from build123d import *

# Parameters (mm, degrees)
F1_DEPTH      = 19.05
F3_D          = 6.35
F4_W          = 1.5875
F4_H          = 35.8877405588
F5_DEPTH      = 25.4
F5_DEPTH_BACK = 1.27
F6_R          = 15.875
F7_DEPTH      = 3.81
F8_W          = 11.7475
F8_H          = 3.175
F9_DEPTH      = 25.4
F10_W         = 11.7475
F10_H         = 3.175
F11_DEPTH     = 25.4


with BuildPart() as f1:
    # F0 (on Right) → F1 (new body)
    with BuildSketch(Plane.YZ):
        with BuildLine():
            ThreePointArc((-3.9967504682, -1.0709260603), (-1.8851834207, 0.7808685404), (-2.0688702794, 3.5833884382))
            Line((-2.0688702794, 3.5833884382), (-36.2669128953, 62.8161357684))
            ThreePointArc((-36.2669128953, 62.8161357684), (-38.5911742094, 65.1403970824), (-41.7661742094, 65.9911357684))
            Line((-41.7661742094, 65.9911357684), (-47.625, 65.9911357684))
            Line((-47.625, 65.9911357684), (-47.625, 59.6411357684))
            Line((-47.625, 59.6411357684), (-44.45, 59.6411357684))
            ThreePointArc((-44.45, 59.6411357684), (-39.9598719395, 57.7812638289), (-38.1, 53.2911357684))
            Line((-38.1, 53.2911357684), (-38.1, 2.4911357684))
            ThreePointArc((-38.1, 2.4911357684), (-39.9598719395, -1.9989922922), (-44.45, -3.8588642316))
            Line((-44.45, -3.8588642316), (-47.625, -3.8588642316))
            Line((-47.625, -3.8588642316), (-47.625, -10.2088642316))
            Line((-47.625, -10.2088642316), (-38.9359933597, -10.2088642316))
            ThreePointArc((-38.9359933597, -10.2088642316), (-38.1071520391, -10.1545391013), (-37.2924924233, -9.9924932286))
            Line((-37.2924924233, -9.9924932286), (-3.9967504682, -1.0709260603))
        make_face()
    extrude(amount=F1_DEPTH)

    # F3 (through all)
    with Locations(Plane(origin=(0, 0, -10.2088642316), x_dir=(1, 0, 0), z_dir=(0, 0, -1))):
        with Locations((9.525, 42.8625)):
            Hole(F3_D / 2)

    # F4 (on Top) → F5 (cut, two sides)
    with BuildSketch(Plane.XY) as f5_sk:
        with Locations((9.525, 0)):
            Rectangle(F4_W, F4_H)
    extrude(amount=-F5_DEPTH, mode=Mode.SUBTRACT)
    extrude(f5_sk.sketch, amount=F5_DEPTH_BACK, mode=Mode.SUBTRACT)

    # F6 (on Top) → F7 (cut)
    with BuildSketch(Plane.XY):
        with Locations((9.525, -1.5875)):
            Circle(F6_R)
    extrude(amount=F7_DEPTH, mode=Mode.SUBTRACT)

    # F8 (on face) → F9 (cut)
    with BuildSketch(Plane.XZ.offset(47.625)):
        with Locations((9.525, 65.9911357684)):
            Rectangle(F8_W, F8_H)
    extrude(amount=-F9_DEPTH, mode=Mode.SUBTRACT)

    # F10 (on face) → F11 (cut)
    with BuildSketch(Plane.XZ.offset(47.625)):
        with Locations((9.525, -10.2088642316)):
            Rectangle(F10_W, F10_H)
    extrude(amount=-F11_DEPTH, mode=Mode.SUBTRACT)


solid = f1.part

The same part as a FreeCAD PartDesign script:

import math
import FreeCAD as App
import Part
import Sketcher
Q = App.Units.Quantity


def add_polygon(sketch, points):
    """Adds a closed chain of lines whose ends are joined by coincident constraints."""
    first, n = sketch.GeometryCount, len(points)
    for a, b in zip(points, points[1:] + points[:1]):
        sketch.addGeometry(Part.LineSegment(App.Vector(*a, 0), App.Vector(*b, 0)), False)
    for i in range(n):
        sketch.addConstraint(Sketcher.Constraint("Coincident", first + i, 2, first + (i + 1) % n, 1))

doc = App.newDocument("Part")
body = doc.addObject("PartDesign::Body", "Body")

# Sketch on YZ plane
sketch1 = body.newObject("Sketcher::SketchObject", "Sketch")
sketch1.AttachmentSupport = (doc.getObject("YZ_Plane"), [""])
sketch1.MapMode = "FlatFace"
sketch1.addGeometry(Part.ArcOfCircle(Part.Circle(App.Vector(-4.8, 2, 0), App.Vector(0, 0, 1), 3.2), math.radians(-75), math.radians(30)), False)
sketch1.addGeometry(Part.LineSegment(App.Vector(-2.1, 3.6, 0), App.Vector(-36.3, 62.8, 0)), False)
sketch1.addGeometry(Part.ArcOfCircle(Part.Circle(App.Vector(-41.8, 59.6, 0), App.Vector(0, 0, 1), 6.3), math.radians(30), math.radians(90)), False)
sketch1.addGeometry(Part.LineSegment(App.Vector(-41.8, 66, 0), App.Vector(-47.6, 66, 0)), False)
sketch1.addGeometry(Part.LineSegment(App.Vector(-47.6, 66, 0), App.Vector(-47.6, 59.6, 0)), False)
sketch1.addGeometry(Part.LineSegment(App.Vector(-47.6, 59.6, 0), App.Vector(-44.5, 59.6, 0)), False)
sketch1.addGeometry(Part.ArcOfCircle(Part.Circle(App.Vector(-44.5, 53.3, 0), App.Vector(0, 0, 1), 6.3), math.radians(0), math.radians(90)), False)
sketch1.addGeometry(Part.LineSegment(App.Vector(-38.1, 53.3, 0), App.Vector(-38.1, 2.5, 0)), False)
sketch1.addGeometry(Part.ArcOfCircle(Part.Circle(App.Vector(-44.5, 2.5, 0), App.Vector(0, 0, 1), 6.3), math.radians(-90), math.radians(0)), False)
sketch1.addGeometry(Part.LineSegment(App.Vector(-44.5, -3.9, 0), App.Vector(-47.6, -3.9, 0)), False)
sketch1.addGeometry(Part.LineSegment(App.Vector(-47.6, -3.9, 0), App.Vector(-47.6, -10.2, 0)), False)
sketch1.addGeometry(Part.LineSegment(App.Vector(-47.6, -10.2, 0), App.Vector(-38.9, -10.2, 0)), False)
sketch1.addGeometry(Part.ArcOfCircle(Part.Circle(App.Vector(-38.9, -3.9, 0), App.Vector(0, 0, 1), 6.4), math.radians(-90), math.radians(-75)), False)
sketch1.addGeometry(Part.LineSegment(App.Vector(-37.3, -10, 0), App.Vector(-4, -1.1, 0)), False)
sketch1.addConstraint(Sketcher.Constraint("Tangent", 0, 2, 1, 1))
sketch1.addConstraint(Sketcher.Constraint("Tangent", 1, 2, 2, 1))
sketch1.addConstraint(Sketcher.Constraint("Tangent", 2, 2, 3, 1))
sketch1.addConstraint(Sketcher.Constraint("Coincident", 3, 2, 4, 1))
sketch1.addConstraint(Sketcher.Constraint("Coincident", 4, 2, 5, 1))
sketch1.addConstraint(Sketcher.Constraint("Tangent", 5, 2, 6, 2))
sketch1.addConstraint(Sketcher.Constraint("Tangent", 6, 1, 7, 1))
sketch1.addConstraint(Sketcher.Constraint("Tangent", 7, 2, 8, 2))
sketch1.addConstraint(Sketcher.Constraint("Tangent", 8, 1, 9, 1))
sketch1.addConstraint(Sketcher.Constraint("Coincident", 9, 2, 10, 1))
sketch1.addConstraint(Sketcher.Constraint("Coincident", 10, 2, 11, 1))
sketch1.addConstraint(Sketcher.Constraint("Tangent", 11, 2, 12, 1))
sketch1.addConstraint(Sketcher.Constraint("Tangent", 12, 2, 13, 1))
sketch1.addConstraint(Sketcher.Constraint("Tangent", 13, 2, 0, 1))
sketch1.addConstraint(Sketcher.Constraint("Horizontal", 3))
sketch1.addConstraint(Sketcher.Constraint("Vertical", 4))
sketch1.addConstraint(Sketcher.Constraint("Horizontal", 5))
sketch1.addConstraint(Sketcher.Constraint("Vertical", 7))
sketch1.addConstraint(Sketcher.Constraint("Horizontal", 9))
sketch1.addConstraint(Sketcher.Constraint("Vertical", 10))
sketch1.addConstraint(Sketcher.Constraint("Horizontal", 11))
sketch1.addConstraint(Sketcher.Constraint("Equal", 2, 6))
sketch1.addConstraint(Sketcher.Constraint("Equal", 6, 8))
sketch1.addConstraint(Sketcher.Constraint("Equal", 8, 12))
sketch1.addConstraint(Sketcher.Constraint("Horizontal", 2, 3, 4, 2))
sketch1.addConstraint(Sketcher.Constraint("Horizontal", 12, 3, 8, 1))
sketch1.addConstraint(Sketcher.Constraint("Vertical", 4, 2, 9, 2))
sketch1.addConstraint(Sketcher.Constraint("DistanceY", 7, 2, 7, 1, Q("2 in")))
sketch1.addConstraint(Sketcher.Constraint("Radius", 2, Q("0.25 in")))
sketch1.addConstraint(Sketcher.Constraint("Angle", 1, Q("120 deg")))
sketch1.addConstraint(Sketcher.Constraint("Angle", 13, Q("15 deg")))
sketch1.addConstraint(Sketcher.Constraint("Radius", 0, Q("0.125 in")))
sketch1.addConstraint(Sketcher.Constraint("DistanceX", 6, 1, -1, 1, Q("1.5 in")))
sketch1.addConstraint(Sketcher.Constraint("DistanceX", 5, 1, 5, 2, Q("0.125 in")))
sketch1.addConstraint(Sketcher.Constraint("DistanceX", 0, 3, -1, 1, Q("4.818501 mm")))
sketch1.addConstraint(Sketcher.Constraint("Distance", 13, Q("34.470289 mm")))
sketch1.addConstraint(Sketcher.Constraint("DistanceY", -1, 1, 0, 3, Q("1.995888 mm")))
pad1 = body.newObject("PartDesign::Pad", "Pad")
pad1.Profile = sketch1
pad1.Length = Q("0.75 in")

# Sketch on XY plane
sketch2 = body.newObject("Sketcher::SketchObject", "Sketch001")
sketch2.AttachmentSupport = (doc.getObject("XY_Plane"), [""])
sketch2.MapMode = "FlatFace"
sketch2.AttachmentOffset = App.Placement(App.Vector(0, 0, -10.208864), App.Rotation())
sketch2.addGeometry(Part.Circle(App.Vector(9.5, -42.9, 0), App.Vector(0, 0, 1), 3.2), False)
sketch2.addConstraint(Sketcher.Constraint("Diameter", 0, Q("0.25 in")))
sketch2.addConstraint(Sketcher.Constraint("DistanceX", -1, 1, 0, 3, Q("0.375 in")))
sketch2.addConstraint(Sketcher.Constraint("DistanceY", 0, 3, -1, 1, Q("1.6875 in")))
doc.recompute()
hole = body.newObject("PartDesign::Hole", "Hole")
hole.Profile = sketch2
hole.ThreadType = "None"
hole.Diameter = Q("0.25 in")
hole.DepthType = "ThroughAll"
hole.Reversed = True

# Sketch on XY plane
sketch3 = body.newObject("Sketcher::SketchObject", "Sketch002")
sketch3.AttachmentSupport = (doc.getObject("XY_Plane"), [""])
sketch3.MapMode = "FlatFace"
add_polygon(sketch3, [(8.7, 17.9), (8.7, -17.9), (10.3, -17.9), (10.3, 17.9)])  # lines 0-3
sketch3.addConstraint(Sketcher.Constraint("Vertical", 0))
sketch3.addConstraint(Sketcher.Constraint("Horizontal", 1))
sketch3.addConstraint(Sketcher.Constraint("Vertical", 2))
sketch3.addConstraint(Sketcher.Constraint("Horizontal", 3))
sketch3.addConstraint(Sketcher.Constraint("DistanceX", 1, 1, 1, 2, Q("0.0625 in")))
sketch3.addConstraint(Sketcher.Constraint("DistanceX", -1, 1, 0, 2, Q("0.34375 in")))
sketch3.addConstraint(Sketcher.Constraint("DistanceY", 0, 2, 0, 1, Q("35.887741 mm")))
sketch3.addConstraint(Sketcher.Constraint("DistanceY", 0, 2, -1, 1, Q("17.94387 mm")))
pocket1 = body.newObject("PartDesign::Pocket", "Pocket")
pocket1.Profile = sketch3
pocket1.Type = "TwoLengths"
pocket1.Length = Q("1 in")
pocket1.Length2 = Q("0.05 in")

# Sketch on XY plane
sketch4 = body.newObject("Sketcher::SketchObject", "Sketch003")
sketch4.AttachmentSupport = (doc.getObject("XY_Plane"), [""])
sketch4.MapMode = "FlatFace"
sketch4.addGeometry(Part.Circle(App.Vector(10, -2, 0), App.Vector(0, 0, 1), 16), False)
sketch4.addConstraint(Sketcher.Constraint("Diameter", 0, Q("1.25 in")))
sketch4.addConstraint(Sketcher.Constraint("DistanceX", -1, 1, 0, 3, Q("0.375 in")))
sketch4.addConstraint(Sketcher.Constraint("DistanceY", 0, 3, -1, 1, Q("0.0625 in")))
pocket2 = body.newObject("PartDesign::Pocket", "Pocket001")
pocket2.Profile = sketch4
pocket2.Length = Q("0.15 in")
pocket2.Reversed = True

# Sketch on XZ plane
sketch5 = body.newObject("Sketcher::SketchObject", "Sketch004")
sketch5.AttachmentSupport = (doc.getObject("XZ_Plane"), [""])
sketch5.MapMode = "FlatFace"
sketch5.AttachmentOffset = App.Placement(App.Vector(0, 0, 1.875 * 25.4), App.Rotation())
add_polygon(sketch5, [(3.7, 67.6), (3.7, 64.4), (15.4, 64.4), (15.4, 67.6)])  # lines 0-3
sketch5.addConstraint(Sketcher.Constraint("Vertical", 0))
sketch5.addConstraint(Sketcher.Constraint("Horizontal", 1))
sketch5.addConstraint(Sketcher.Constraint("Vertical", 2))
sketch5.addConstraint(Sketcher.Constraint("Horizontal", 3))
sketch5.addConstraint(Sketcher.Constraint("DistanceY", 0, 2, 0, 1, Q("0.125 in")))
sketch5.addConstraint(Sketcher.Constraint("DistanceX", 1, 1, 1, 2, Q("0.4625 in")))
sketch5.addConstraint(Sketcher.Constraint("DistanceX", -1, 1, 0, 2, Q("3.65125 mm")))
sketch5.addConstraint(Sketcher.Constraint("DistanceY", -1, 1, 0, 2, Q("64.403636 mm")))
pocket3 = body.newObject("PartDesign::Pocket", "Pocket002")
pocket3.Profile = sketch5
pocket3.Length = Q("1 in")

# Sketch on XZ plane
sketch6 = body.newObject("Sketcher::SketchObject", "Sketch005")
sketch6.AttachmentSupport = (doc.getObject("XZ_Plane"), [""])
sketch6.MapMode = "FlatFace"
sketch6.AttachmentOffset = App.Placement(App.Vector(0, 0, 1.875 * 25.4), App.Rotation())
add_polygon(sketch6, [(3.7, -8.6), (3.7, -11.8), (15.4, -11.8), (15.4, -8.6)])  # lines 0-3
sketch6.addConstraint(Sketcher.Constraint("Vertical", 0))
sketch6.addConstraint(Sketcher.Constraint("Horizontal", 1))
sketch6.addConstraint(Sketcher.Constraint("Vertical", 2))
sketch6.addConstraint(Sketcher.Constraint("Horizontal", 3))
sketch6.addConstraint(Sketcher.Constraint("DistanceY", 0, 2, 0, 1, Q("0.125 in")))
sketch6.addConstraint(Sketcher.Constraint("DistanceX", 1, 1, 1, 2, Q("0.4625 in")))
sketch6.addConstraint(Sketcher.Constraint("DistanceX", -1, 1, 0, 2, Q("3.65125 mm")))
sketch6.addConstraint(Sketcher.Constraint("DistanceY", 0, 2, -1, 1, Q("11.796364 mm")))
pocket4 = body.newObject("PartDesign::Pocket", "Pocket003")
pocket4.Profile = sketch6
pocket4.Length = Q("1 in")

doc.recompute()
